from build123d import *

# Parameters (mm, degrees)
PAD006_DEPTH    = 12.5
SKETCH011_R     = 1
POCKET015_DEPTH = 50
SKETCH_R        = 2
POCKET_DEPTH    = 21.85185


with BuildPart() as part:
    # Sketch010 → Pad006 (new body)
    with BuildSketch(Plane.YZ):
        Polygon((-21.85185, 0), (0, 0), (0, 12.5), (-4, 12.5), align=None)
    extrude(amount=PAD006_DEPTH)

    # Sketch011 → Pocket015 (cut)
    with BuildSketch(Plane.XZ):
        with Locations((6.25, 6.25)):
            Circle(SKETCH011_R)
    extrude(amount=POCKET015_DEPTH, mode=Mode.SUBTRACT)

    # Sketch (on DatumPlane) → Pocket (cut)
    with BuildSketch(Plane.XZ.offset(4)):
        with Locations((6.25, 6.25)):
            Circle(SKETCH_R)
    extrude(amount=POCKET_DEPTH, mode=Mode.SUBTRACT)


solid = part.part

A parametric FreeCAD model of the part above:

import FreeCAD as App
import Part
import Sketcher
from FreeCAD import Vector
Q = App.Units.Quantity


def add_polygon(sketch, points):
    """Adds a closed chain of lines whose ends are joined by coincident constraints."""
    first, n = sketch.GeometryCount, len(points)
    for a, b in zip(points, points[1:] + points[:1]):
        sketch.addGeometry(Part.LineSegment(App.Vector(*a, 0), App.Vector(*b, 0)), False)
    for i in range(n):
        sketch.addConstraint(Sketcher.Constraint("Coincident", first + i, 2, first + (i + 1) % n, 1))

doc = App.newDocument("Part")
body = doc.addObject("PartDesign::Body", "Body")

# Sketch on YZ plane
sketch1 = doc.addObject("Sketcher::SketchObject", "Sketch")
body.addObject(sketch1)
sketch1.AttachmentSupport = (doc.YZ_Plane, [""])
sketch1.MapMode = "FlatFace"
add_polygon(sketch1, [(-21.9, 0), (0, 0), (0, 12.5), (-4, 12.5)])  # lines 0-3
sketch1.addConstraint([
    Sketcher.Constraint("Horizontal", 0),
    Sketcher.Constraint("Vertical", 1),
    Sketcher.Constraint("Horizontal", 2),
    Sketcher.Constraint("Coincident", 0, 2, -1, 1),
    Sketcher.Constraint("DistanceX", 2, 2, 2, 1, Q("4 mm")),
    Sketcher.Constraint("Angle", 3, Q("-145 deg")),
    Sketcher.Constraint("DistanceY", 1, 1, 1, 2, Q("12.5 mm")),
])
pad1 = doc.addObject("PartDesign::Pad", "Pad")
body.addObject(pad1)
pad1.Profile = sketch1
pad1.Length = 12.5

# Sketch on XZ plane
sketch2 = doc.addObject("Sketcher::SketchObject", "Sketch001")
body.addObject(sketch2)
sketch2.AttachmentSupport = (doc.XZ_Plane, [""])
sketch2.MapMode = "FlatFace"
sketch2.addGeometry(Part.Circle(Vector(6.2, 6.2, 0), Vector(0, 0, 1), 1), False)
sketch2.addConstraint([
    Sketcher.Constraint("Diameter", 0, Q("2 mm")),
    Sketcher.Constraint("DistanceX", -1, 1, 0, 3, Q("6.25 mm")),
    Sketcher.Constraint("DistanceY", -1, 1, 0, 3, Q("6.25 mm")),
])
pocket1 = doc.addObject("PartDesign::Pocket", "Pocket")
body.addObject(pocket1)
pocket1.Profile = sketch2
pocket1.Length = 50
pocket1.Reversed = True

# Sketch on XZ plane
sketch3 = doc.addObject("Sketcher::SketchObject", "Sketch002")
body.addObject(sketch3)
sketch3.AttachmentSupport = (doc.XZ_Plane, [""])
sketch3.MapMode = "FlatFace"
sketch3.AttachmentOffset = App.Placement(Vector(0, 0, 4), App.Rotation())
sketch3.addGeometry(Part.Circle(Vector(6.2, 6.2, 0), Vector(0, 0, 1), 2), False)
sketch3.addConstraint([
    Sketcher.Constraint("Diameter", 0, Q("4 mm")),
    Sketcher.Constraint("DistanceX", -1, 1, 0, 3, Q("6.25 mm")),
    Sketcher.Constraint("DistanceY", -1, 1, 0, 3, Q("6.25 mm")),
])
pocket2 = doc.addObject("PartDesign::Pocket", "Pocket001")
body.addObject(pocket2)
pocket2.Profile = sketch3
pocket2.Length = 21.85185
pocket2.Reversed = True

doc.recompute()
